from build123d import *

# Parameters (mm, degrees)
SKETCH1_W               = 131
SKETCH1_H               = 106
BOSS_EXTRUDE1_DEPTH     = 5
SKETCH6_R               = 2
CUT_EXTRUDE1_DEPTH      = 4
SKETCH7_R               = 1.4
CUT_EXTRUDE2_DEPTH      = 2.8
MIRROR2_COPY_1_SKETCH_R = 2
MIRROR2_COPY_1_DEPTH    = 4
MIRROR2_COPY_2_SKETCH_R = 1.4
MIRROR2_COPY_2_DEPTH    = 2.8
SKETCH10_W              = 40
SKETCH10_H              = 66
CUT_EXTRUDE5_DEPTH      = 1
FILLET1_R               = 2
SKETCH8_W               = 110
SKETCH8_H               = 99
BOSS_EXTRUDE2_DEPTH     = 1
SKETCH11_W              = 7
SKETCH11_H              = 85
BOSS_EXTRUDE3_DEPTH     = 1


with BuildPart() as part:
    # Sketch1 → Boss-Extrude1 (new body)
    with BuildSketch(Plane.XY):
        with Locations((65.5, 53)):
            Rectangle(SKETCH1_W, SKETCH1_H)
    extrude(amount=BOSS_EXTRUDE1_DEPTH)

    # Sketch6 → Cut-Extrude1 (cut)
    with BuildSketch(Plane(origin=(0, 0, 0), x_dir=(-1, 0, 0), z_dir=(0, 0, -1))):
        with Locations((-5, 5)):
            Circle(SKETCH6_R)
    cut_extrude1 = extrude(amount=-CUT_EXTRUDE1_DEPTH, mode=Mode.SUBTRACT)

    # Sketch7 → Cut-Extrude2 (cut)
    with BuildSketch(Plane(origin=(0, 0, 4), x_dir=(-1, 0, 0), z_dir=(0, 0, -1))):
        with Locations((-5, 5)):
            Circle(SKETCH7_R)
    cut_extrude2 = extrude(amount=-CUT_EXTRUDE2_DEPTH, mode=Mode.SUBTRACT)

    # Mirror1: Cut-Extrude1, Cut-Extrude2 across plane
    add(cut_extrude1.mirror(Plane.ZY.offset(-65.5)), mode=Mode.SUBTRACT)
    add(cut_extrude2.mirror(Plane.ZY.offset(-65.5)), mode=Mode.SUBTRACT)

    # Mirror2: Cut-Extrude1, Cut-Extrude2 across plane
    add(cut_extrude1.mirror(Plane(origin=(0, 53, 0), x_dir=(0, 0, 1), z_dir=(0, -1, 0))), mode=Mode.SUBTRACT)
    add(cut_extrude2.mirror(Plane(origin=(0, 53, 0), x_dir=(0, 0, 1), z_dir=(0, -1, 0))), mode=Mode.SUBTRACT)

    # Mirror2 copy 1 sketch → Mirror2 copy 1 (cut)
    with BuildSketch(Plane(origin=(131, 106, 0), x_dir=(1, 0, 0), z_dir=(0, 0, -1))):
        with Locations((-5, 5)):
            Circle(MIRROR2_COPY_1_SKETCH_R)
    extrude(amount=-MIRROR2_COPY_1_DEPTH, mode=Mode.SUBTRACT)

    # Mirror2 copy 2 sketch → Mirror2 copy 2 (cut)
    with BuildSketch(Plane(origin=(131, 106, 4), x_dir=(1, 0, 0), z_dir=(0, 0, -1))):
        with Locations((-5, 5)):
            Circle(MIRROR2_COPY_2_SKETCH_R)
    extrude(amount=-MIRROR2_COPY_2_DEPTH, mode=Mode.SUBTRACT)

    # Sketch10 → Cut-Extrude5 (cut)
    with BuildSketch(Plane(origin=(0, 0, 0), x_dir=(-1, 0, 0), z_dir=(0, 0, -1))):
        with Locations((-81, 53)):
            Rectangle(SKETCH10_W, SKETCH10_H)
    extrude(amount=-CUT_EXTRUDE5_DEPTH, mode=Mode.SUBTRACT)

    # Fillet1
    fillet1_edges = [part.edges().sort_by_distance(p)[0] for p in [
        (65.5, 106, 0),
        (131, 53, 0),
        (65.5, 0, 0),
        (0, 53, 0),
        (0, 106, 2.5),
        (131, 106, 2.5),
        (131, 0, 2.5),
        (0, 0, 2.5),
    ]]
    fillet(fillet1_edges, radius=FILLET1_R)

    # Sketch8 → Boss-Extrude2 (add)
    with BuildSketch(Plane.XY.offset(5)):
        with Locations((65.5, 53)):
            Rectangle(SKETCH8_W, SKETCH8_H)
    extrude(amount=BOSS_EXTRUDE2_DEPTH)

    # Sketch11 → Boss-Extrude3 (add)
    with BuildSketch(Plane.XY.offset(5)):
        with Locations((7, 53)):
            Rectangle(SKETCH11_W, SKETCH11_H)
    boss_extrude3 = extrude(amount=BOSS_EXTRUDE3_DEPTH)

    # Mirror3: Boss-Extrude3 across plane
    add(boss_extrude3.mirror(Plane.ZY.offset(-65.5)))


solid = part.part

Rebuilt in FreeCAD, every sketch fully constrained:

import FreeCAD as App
import Part
import Sketcher


def edges_at(feature, points):
    """Names of the edges that pass closest to the given points."""
    edges = feature.Shape.Edges
    near = lambda p: min(range(len(edges)), key=lambda i: edges[i].distToShape(Part.Vertex(*p))[0])
    return sorted({f"Edge{near(p) + 1}" for p in points})

doc = App.newDocument("Part")
body = doc.addObject("PartDesign::Body", "Body")

# Sketch on XY plane
sketch1 = doc.addObject("Sketcher::SketchObject", "Sketch")
body.addObject(sketch1)
sketch1.AttachmentSupport = (doc.XY_Plane, [""])
sketch1.MapMode = "FlatFace"
sketch1.addGeometry([
    Part.LineSegment(App.Vector(0, 106, 0), App.Vector(0, 0, 0)),
    Part.LineSegment(App.Vector(0, 0, 0), App.Vector(131, 0, 0)),
    Part.LineSegment(App.Vector(131, 0, 0), App.Vector(131, 106, 0)),
    Part.LineSegment(App.Vector(131, 106, 0), App.Vector(0, 106, 0)),
], False)
sketch1.addConstraint([
    Sketcher.Constraint("Coincident", 0, 2, 1, 1),
    Sketcher.Constraint("Coincident", 1, 2, 2, 1),
    Sketcher.Constraint("Coincident", 2, 2, 3, 1),
    Sketcher.Constraint("Coincident", 3, 2, 0, 1),
    Sketcher.Constraint("Vertical", 0),
    Sketcher.Constraint("Horizontal", 1),
    Sketcher.Constraint("Vertical", 2),
    Sketcher.Constraint("Horizontal", 3),
    Sketcher.Constraint("Coincident", 0, 2, -1, 1),
    Sketcher.Constraint("DistanceX", 1, 1, 1, 2, 131.0),
    Sketcher.Constraint("DistanceY", 0, 2, 0, 1, 106.0),
])
pad1 = doc.addObject("PartDesign::Pad", "Pad")
body.addObject(pad1)
pad1.Profile = sketch1
pad1.Length = 5

# Sketch on XY plane
sketch2 = doc.addObject("Sketcher::SketchObject", "Sketch001")
body.addObject(sketch2)
sketch2.AttachmentSupport = (doc.XY_Plane, [""])
sketch2.MapMode = "FlatFace"
sketch2.addGeometry(Part.Circle(App.Vector(5, 5, 0), App.Vector(0, 0, 1), 2), False)
sketch2.addConstraint([
    Sketcher.Constraint("Diameter", 0, 4.0),
    Sketcher.Constraint("DistanceX", -1, 1, 0, 3, 5.0),
    Sketcher.Constraint("DistanceY", -1, 1, 0, 3, 5.0),
])
pocket1 = doc.addObject("PartDesign::Pocket", "Pocket")
body.addObject(pocket1)
pocket1.Profile = sketch2
pocket1.Length = 4
pocket1.Reversed = True

# Sketch on XY plane
sketch3 = doc.addObject("Sketcher::SketchObject", "Sketch002")
body.addObject(sketch3)
sketch3.AttachmentSupport = (doc.XY_Plane, [""])
sketch3.MapMode = "FlatFace"
sketch3.AttachmentOffset = App.Placement(App.Vector(0, 0, 4), App.Rotation())
sketch3.addGeometry(Part.Circle(App.Vector(5, 5, 0), App.Vector(0, 0, 1), 1.4), False)
sketch3.addConstraint([
    Sketcher.Constraint("Diameter", 0, 2.8),
    Sketcher.Constraint("DistanceX", -1, 1, 0, 3, 5.0),
    Sketcher.Constraint("DistanceY", -1, 1, 0, 3, 5.0),
])
pocket2 = doc.addObject("PartDesign::Pocket", "Pocket001")
body.addObject(pocket2)
pocket2.Profile = sketch3
pocket2.Length = 2.8
pocket2.Reversed = True
doc.recompute()

datumplane = doc.addObject("PartDesign::Plane", "DatumPlane")
body.addObject(datumplane)
datumplane.AttachmentSupport = (doc.YZ_Plane, [""])
datumplane.MapMode = "FlatFace"
datumplane.AttachmentOffset = App.Placement(App.Vector(0, 0, 65.5), App.Rotation())
mirrored = doc.addObject("PartDesign::Mirrored", "Mirrored")
body.addObject(mirrored)
mirrored.Originals = [pocket1, pocket2]
mirrored.MirrorPlane = (datumplane, [""])
body.Tip = mirrored
doc.recompute()

datumplane2 = doc.addObject("PartDesign::Plane", "DatumPlane001")
body.addObject(datumplane2)
datumplane2.AttachmentSupport = (doc.XZ_Plane, [""])
datumplane2.MapMode = "FlatFace"
datumplane2.AttachmentOffset = App.Placement(App.Vector(0, 0, -53), App.Rotation())
mirrored2 = doc.addObject("PartDesign::Mirrored", "Mirrored001")
body.addObject(mirrored2)
mirrored2.Originals = [pocket1, pocket2]
mirrored2.MirrorPlane = (datumplane2, [""])
body.Tip = mirrored2

# Sketch on XY plane
sketch4 = doc.addObject("Sketcher::SketchObject", "Sketch003")
body.addObject(sketch4)
sketch4.AttachmentSupport = (doc.XY_Plane, [""])
sketch4.MapMode = "FlatFace"
sketch4.addGeometry(Part.Circle(App.Vector(126, 101, 0), App.Vector(0, 0, 1), 2), False)
sketch4.addConstraint([
    Sketcher.Constraint("Diameter", 0, 4.0),
    Sketcher.Constraint("DistanceX", -1, 1, 0, 3, 126.0),
    Sketcher.Constraint("DistanceY", -1, 1, 0, 3, 101.0),
])
pocket3 = doc.addObject("PartDesign::Pocket", "Pocket002")
body.addObject(pocket3)
pocket3.Profile = sketch4
pocket3.Length = 4
pocket3.Reversed = True

# Sketch on XY plane
sketch5 = doc.addObject("Sketcher::SketchObject", "Sketch004")
body.addObject(sketch5)
sketch5.AttachmentSupport = (doc.XY_Plane, [""])
sketch5.MapMode = "FlatFace"
sketch5.AttachmentOffset = App.Placement(App.Vector(0, 0, 4), App.Rotation())
sketch5.addGeometry(Part.Circle(App.Vector(126, 101, 0), App.Vector(0, 0, 1), 1.4), False)
sketch5.addConstraint([
    Sketcher.Constraint("Diameter", 0, 2.8),
    Sketcher.Constraint("DistanceX", -1, 1, 0, 3, 126.0),
    Sketcher.Constraint("DistanceY", -1, 1, 0, 3, 101.0),
])
pocket4 = doc.addObject("PartDesign::Pocket", "Pocket003")
body.addObject(pocket4)
pocket4.Profile = sketch5
pocket4.Length = 2.8
pocket4.Reversed = True

# Sketch on XY plane
sketch6 = doc.addObject("Sketcher::SketchObject", "Sketch005")
body.addObject(sketch6)
sketch6.AttachmentSupport = (doc.XY_Plane, [""])
sketch6.MapMode = "FlatFace"
sketch6.addGeometry([
    Part.LineSegment(App.Vector(101, 86, 0), App.Vector(101, 20, 0)),
    Part.LineSegment(App.Vector(101, 20, 0), App.Vector(61, 20, 0)),
    Part.LineSegment(App.Vector(61, 20, 0), App.Vector(61, 86, 0)),
    Part.LineSegment(App.Vector(61, 86, 0), App.Vector(101, 86, 0)),
], False)
sketch6.addConstraint([
    Sketcher.Constraint("Coincident", 0, 2, 1, 1),
    Sketcher.Constraint("Coincident", 1, 2, 2, 1),
    Sketcher.Constraint("Coincident", 2, 2, 3, 1),
    Sketcher.Constraint("Coincident", 3, 2, 0, 1),
    Sketcher.Constraint("Vertical", 0),
    Sketcher.Constraint("Horizontal", 1),
    Sketcher.Constraint("Vertical", 2),
    Sketcher.Constraint("Horizontal", 3),
    Sketcher.Constraint("DistanceX", 1, 2, 1, 1, 40.0),
    Sketcher.Constraint("DistanceY", 0, 2, 0, 1, 66.0),
    Sketcher.Constraint("DistanceX", -1, 1, 0, 2, 101.0),
    Sketcher.Constraint("DistanceY", -1, 1, 0, 2, 20.0),
])
pocket5 = doc.addObject("PartDesign::Pocket", "Pocket004")
body.addObject(pocket5)
pocket5.Profile = sketch6
pocket5.Length = 1
pocket5.Reversed = True
doc.recompute()

fillet = doc.addObject("PartDesign::Fillet", "Fillet")
body.addObject(fillet)
fillet.Base = (pocket5, edges_at(pocket5, [
    (65.5, 106, 0),
    (131, 53, 0),
    (65.5, 0, 0),
    (0, 53, 0),
    (0, 106, 2.5),
    (131, 106, 2.5),
    (131, 0, 2.5),
    (0, 0, 2.5),
]))
fillet.Radius = 2

# Sketch on XY plane
sketch7 = doc.addObject("Sketcher::SketchObject", "Sketch006")
body.addObject(sketch7)
sketch7.AttachmentSupport = (doc.XY_Plane, [""])
sketch7.MapMode = "FlatFace"
sketch7.AttachmentOffset = App.Placement(App.Vector(0, 0, 5), App.Rotation())
sketch7.addGeometry([
    Part.LineSegment(App.Vector(10, 102, 0), App.Vector(10, 4, 0)),
    Part.LineSegment(App.Vector(10, 4, 0), App.Vector(120, 4, 0)),
    Part.LineSegment(App.Vector(120, 4, 0), App.Vector(120, 102, 0)),
    Part.LineSegment(App.Vector(120, 102, 0), App.Vector(10, 102, 0)),
], False)
sketch7.addConstraint([
    Sketcher.Constraint("Coincident", 0, 2, 1, 1),
    Sketcher.Constraint("Coincident", 1, 2, 2, 1),
    Sketcher.Constraint("Coincident", 2, 2, 3, 1),
    Sketcher.Constraint("Coincident", 3, 2, 0, 1),
    Sketcher.Constraint("Vertical", 0),
    Sketcher.Constraint("Horizontal", 1),
    Sketcher.Constraint("Vertical", 2),
    Sketcher.Constraint("Horizontal", 3),
    Sketcher.Constraint("DistanceX", 1, 1, 1, 2, 110.0),
    Sketcher.Constraint("DistanceY", 0, 2, 0, 1, 99.0),
    Sketcher.Constraint("DistanceX", -1, 1, 0, 2, 10.5),
    Sketcher.Constraint("DistanceY", -1, 1, 0, 2, 3.5),
])
pad2 = doc.addObject("PartDesign::Pad", "Pad001")
body.addObject(pad2)
pad2.Profile = sketch7
pad2.Length = 1

# Sketch on XY plane
sketch8 = doc.addObject("Sketcher::SketchObject", "Sketch007")
body.addObject(sketch8)
sketch8.AttachmentSupport = (doc.XY_Plane, [""])
sketch8.MapMode = "FlatFace"
sketch8.AttachmentOffset = App.Placement(App.Vector(0, 0, 5), App.Rotation())
sketch8.addGeometry([
    Part.LineSegment(App.Vector(4, 96, 0), App.Vector(4, 10, 0)),
    Part.LineSegment(App.Vector(4, 10, 0), App.Vector(10, 10, 0)),
    Part.LineSegment(App.Vector(10, 10, 0), App.Vector(10, 96, 0)),
    Part.LineSegment(App.Vector(10, 96, 0), App.Vector(4, 96, 0)),
], False)
sketch8.addConstraint([
    Sketcher.Constraint("Coincident", 0, 2, 1, 1),
    Sketcher.Constraint("Coincident", 1, 2, 2, 1),
    Sketcher.Constraint("Coincident", 2, 2, 3, 1),
    Sketcher.Constraint("Coincident", 3, 2, 0, 1),
    Sketcher.Constraint("Vertical", 0),
    Sketcher.Constraint("Horizontal", 1),
    Sketcher.Constraint("Vertical", 2),
    Sketcher.Constraint("Horizontal", 3),
    Sketcher.Constraint("DistanceX", 1, 1, 1, 2, 7.0),
    Sketcher.Constraint("DistanceY", 0, 2, 0, 1, 85.0),
    Sketcher.Constraint("DistanceX", -1, 1, 0, 2, 3.5),
    Sketcher.Constraint("DistanceY", -1, 1, 0, 2, 10.5),
])
pad3 = doc.addObject("PartDesign::Pad", "Pad002")
body.addObject(pad3)
pad3.Profile = sketch8
pad3.Length = 1
doc.recompute()

datumplane3 = doc.addObject("PartDesign::Plane", "DatumPlane002")
body.addObject(datumplane3)
datumplane3.AttachmentSupport = (doc.YZ_Plane, [""])
datumplane3.MapMode = "FlatFace"
datumplane3.AttachmentOffset = App.Placement(App.Vector(0, 0, 65.5), App.Rotation())
mirrored3 = doc.addObject("PartDesign::Mirrored", "Mirrored002")
body.addObject(mirrored3)
mirrored3.Originals = [pad3]
mirrored3.MirrorPlane = (datumplane3, [""])
body.Tip = mirrored3

doc.recompute()
